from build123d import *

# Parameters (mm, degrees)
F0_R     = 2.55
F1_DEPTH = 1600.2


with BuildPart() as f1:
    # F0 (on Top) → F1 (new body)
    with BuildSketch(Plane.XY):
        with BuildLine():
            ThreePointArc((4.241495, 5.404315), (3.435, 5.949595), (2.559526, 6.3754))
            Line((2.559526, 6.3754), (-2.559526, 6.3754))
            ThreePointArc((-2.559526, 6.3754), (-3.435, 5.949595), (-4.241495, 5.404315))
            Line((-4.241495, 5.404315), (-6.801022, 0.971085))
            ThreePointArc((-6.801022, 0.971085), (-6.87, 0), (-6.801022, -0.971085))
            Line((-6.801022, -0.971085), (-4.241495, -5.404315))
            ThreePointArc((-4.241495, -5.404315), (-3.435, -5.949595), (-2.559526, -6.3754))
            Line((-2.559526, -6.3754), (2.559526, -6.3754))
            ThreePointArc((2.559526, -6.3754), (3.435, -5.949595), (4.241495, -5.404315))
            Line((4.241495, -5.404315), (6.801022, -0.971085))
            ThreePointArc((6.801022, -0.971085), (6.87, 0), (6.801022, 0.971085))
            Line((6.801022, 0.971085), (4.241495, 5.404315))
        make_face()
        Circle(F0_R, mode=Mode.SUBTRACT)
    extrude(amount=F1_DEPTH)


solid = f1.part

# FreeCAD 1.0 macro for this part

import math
import FreeCAD as App
import Part
import Sketcher

V = App.Vector
Q = App.Units.Quantity

doc = App.newDocument("Part")
body = doc.addObject("PartDesign::Body", "Body")

sketch1 = body.newObject("Sketcher::SketchObject", "Sketch")
sketch1.AttachmentSupport = (doc.getObject("XY_Plane"), [""])
sketch1.MapMode = "FlatFace"
sketch1.addGeometry([
    Part.ArcOfCircle(Part.Circle(V(0.000023, 0.000039, 0), V(0, 0, 1), 6.869956), math.radians(51.873891), math.radians(68.126122)),
    Part.LineSegment(V(2.559526, 6.3754, 0), V(-2.559526, 6.3754, 0)),
    Part.ArcOfCircle(Part.Circle(V(-0.000023, 0.000039, 0), V(0, 0, 1), 6.869956), math.radians(111.873878), math.radians(128.126109)),
    Part.LineSegment(V(-4.241495, 5.404315, 0), V(-6.801022, 0.971085, 0)),
    Part.ArcOfCircle(Part.Circle(V(0.000046, 0, 0), V(0, 0, 1), 6.870046), math.radians(171.873994), math.radians(188.126006)),
    Part.LineSegment(V(-6.801022, -0.971085, 0), V(-4.241495, -5.404315, 0)),
    Part.ArcOfCircle(Part.Circle(V(-0.000023, -0.000039, 0), V(0, 0, 1), 6.869956), math.radians(-128.126109), math.radians(-111.873878)),
    Part.LineSegment(V(-2.559526, -6.3754, 0), V(2.559526, -6.3754, 0)),
    Part.ArcOfCircle(Part.Circle(V(0.000023, -0.000039, 0), V(0, 0, 1), 6.869956), math.radians(-68.126122), math.radians(-51.873891)),
    Part.LineSegment(V(4.241495, -5.404315, 0), V(6.801022, -0.971085, 0)),
    Part.ArcOfCircle(Part.Circle(V(-0.000046, 0, 0), V(0, 0, 1), 6.870046), math.radians(-8.126006), math.radians(8.126006)),
    Part.LineSegment(V(6.801022, 0.971085, 0), V(4.241495, 5.404315, 0)),
    Part.Circle(V(0, 0, 0), V(0, 0, 1), 2.55),
], False)
sketch1.addConstraint([
    Sketcher.Constraint("Coincident", 0, 2, 1, 1),
    Sketcher.Constraint("Coincident", 1, 2, 2, 1),
    Sketcher.Constraint("Coincident", 2, 2, 3, 1),
    Sketcher.Constraint("Coincident", 3, 2, 4, 1),
    Sketcher.Constraint("Coincident", 4, 2, 5, 1),
    Sketcher.Constraint("Coincident", 5, 2, 6, 1),
    Sketcher.Constraint("Coincident", 6, 2, 7, 1),
    Sketcher.Constraint("Coincident", 7, 2, 8, 1),
    Sketcher.Constraint("Coincident", 8, 2, 9, 1),
    Sketcher.Constraint("Coincident", 9, 2, 10, 1),
    Sketcher.Constraint("Coincident", 10, 2, 11, 1),
    Sketcher.Constraint("Coincident", 11, 2, 0, 1),
    Sketcher.Constraint("Horizontal", 1),
    Sketcher.Constraint("Horizontal", 7),
    Sketcher.Constraint("Coincident", 12, 3, -1, 1),
    Sketcher.Constraint("Equal", 0, 2),
    Sketcher.Constraint("Equal", 2, 6),
    Sketcher.Constraint("Equal", 6, 8),
    Sketcher.Constraint("Equal", 4, 10),
    Sketcher.Constraint("Symmetric", 0, 3, 6, 3, -1, 1),
    Sketcher.Constraint("Symmetric", 2, 3, 8, 3, -1, 1),
    Sketcher.Constraint("Symmetric", 4, 3, 10, 3, -1, 1),
    Sketcher.Constraint("Symmetric", 0, 3, 2, 3, -2),
    Sketcher.Constraint("Symmetric", 4, 2, 9, 2, -2),
    Sketcher.Constraint("Parallel", 3, 9),
    Sketcher.Constraint("Parallel", 5, 11),
    Sketcher.Constraint("Horizontal", 5, 2, 8, 2),
    Sketcher.Constraint("Horizontal", 3, 2, 10, 2),
    Sketcher.Constraint("Vertical", 3, 2, 4, 2),
    Sketcher.Constraint("Vertical", 1, 2, 6, 2),
    Sketcher.Constraint("Diameter", 12, 5.1),
    Sketcher.Constraint("Angle", 3, Q("-120.000005 deg")),
    Sketcher.Constraint("Radius", 0, 6.869956),
    Sketcher.Constraint("Radius", 4, 6.870046),
    Sketcher.Constraint("DistanceX", 3, 2, 2, 3, 6.800999),
    Sketcher.Constraint("DistanceY", -1, 1, 0, 2, 6.3754),
    Sketcher.Constraint("DistanceY", 4, 2, 2, 2, 6.3754),
    Sketcher.Constraint("DistanceX", 1, 2, 1, 1, 5.119052),
    Sketcher.Constraint("DistanceX", 3, 2, -1, 1, 6.801022),
])
pad1 = body.newObject("PartDesign::Pad", "Pad")
pad1.Profile = sketch1
pad1.Length = 1600.2

doc.recompute()
